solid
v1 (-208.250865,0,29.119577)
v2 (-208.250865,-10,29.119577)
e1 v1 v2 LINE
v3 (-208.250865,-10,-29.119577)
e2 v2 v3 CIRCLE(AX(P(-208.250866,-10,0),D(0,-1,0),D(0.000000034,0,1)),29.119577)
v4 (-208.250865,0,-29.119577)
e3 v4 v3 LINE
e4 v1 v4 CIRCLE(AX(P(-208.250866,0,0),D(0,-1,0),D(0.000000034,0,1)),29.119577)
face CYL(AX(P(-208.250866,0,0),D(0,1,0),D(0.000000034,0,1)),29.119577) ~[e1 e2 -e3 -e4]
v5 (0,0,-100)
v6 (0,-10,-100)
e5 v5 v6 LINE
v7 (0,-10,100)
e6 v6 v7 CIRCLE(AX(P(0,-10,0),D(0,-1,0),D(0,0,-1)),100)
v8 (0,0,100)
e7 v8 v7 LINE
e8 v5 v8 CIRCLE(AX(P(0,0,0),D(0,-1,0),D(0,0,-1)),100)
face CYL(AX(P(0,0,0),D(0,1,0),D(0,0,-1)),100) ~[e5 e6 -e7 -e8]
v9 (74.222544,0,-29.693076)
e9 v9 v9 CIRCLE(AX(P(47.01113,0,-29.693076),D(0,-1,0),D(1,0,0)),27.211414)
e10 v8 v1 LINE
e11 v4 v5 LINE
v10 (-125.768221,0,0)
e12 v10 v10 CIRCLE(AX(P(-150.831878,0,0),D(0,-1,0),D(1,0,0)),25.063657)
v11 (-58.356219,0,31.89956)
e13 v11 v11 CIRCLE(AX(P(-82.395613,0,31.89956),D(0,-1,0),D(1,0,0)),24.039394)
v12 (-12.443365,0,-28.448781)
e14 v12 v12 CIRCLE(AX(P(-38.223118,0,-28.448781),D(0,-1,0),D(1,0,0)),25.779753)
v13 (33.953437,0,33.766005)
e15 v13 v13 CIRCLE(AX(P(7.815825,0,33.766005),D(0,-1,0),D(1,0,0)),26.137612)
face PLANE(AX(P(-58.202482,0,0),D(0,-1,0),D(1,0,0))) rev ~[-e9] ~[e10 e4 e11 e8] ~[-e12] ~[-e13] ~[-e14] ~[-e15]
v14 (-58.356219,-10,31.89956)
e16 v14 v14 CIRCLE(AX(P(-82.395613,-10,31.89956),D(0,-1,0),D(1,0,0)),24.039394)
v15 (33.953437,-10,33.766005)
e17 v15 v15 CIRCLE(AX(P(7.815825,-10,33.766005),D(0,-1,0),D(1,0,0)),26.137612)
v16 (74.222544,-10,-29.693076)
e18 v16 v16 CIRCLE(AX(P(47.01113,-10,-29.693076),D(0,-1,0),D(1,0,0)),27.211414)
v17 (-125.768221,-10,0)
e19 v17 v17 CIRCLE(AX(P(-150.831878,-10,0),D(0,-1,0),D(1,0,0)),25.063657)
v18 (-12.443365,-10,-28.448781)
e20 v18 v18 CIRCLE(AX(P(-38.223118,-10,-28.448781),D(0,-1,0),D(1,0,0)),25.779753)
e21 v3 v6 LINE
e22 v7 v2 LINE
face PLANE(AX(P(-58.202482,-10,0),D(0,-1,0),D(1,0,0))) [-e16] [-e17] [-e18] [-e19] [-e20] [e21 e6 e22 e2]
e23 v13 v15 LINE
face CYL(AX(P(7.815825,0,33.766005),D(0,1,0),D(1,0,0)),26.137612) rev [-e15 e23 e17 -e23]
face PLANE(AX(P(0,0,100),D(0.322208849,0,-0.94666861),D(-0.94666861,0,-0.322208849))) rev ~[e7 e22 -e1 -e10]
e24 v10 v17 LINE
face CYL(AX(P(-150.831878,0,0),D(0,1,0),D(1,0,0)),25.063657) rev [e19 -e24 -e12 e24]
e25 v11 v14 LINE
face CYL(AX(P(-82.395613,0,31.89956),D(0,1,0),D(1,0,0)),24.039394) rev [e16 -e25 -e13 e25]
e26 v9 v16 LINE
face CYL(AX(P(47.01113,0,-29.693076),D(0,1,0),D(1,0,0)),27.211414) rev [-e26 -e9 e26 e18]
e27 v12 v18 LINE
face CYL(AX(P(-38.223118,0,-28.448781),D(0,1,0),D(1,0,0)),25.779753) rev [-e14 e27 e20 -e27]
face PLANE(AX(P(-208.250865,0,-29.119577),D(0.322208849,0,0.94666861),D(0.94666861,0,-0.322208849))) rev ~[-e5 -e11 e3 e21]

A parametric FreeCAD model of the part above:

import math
import FreeCAD as App
import Part
import Sketcher
Q = App.Units.Quantity

doc = App.newDocument("Part")
body = doc.addObject("PartDesign::Body", "Body")

# Sketch on XZ plane
sketch1 = body.newObject("Sketcher::SketchObject", "Sketch")
sketch1.AttachmentSupport = (doc.getObject("XZ_Plane"), [""])
sketch1.MapMode = "FlatFace"
sketch1.addGeometry([
    Part.LineSegment(App.Vector(-208, -29, 0), App.Vector(0, -100, 0)),  # 0
    Part.ArcOfCircle(Part.Circle(App.Vector(0, 0, 0), App.Vector(0, 0, 1), 100), math.radians(-90), math.radians(90)),  # 1
    Part.LineSegment(App.Vector(0, 100, 0), App.Vector(-208, 29, 0)),  # 2
    Part.ArcOfCircle(Part.Circle(App.Vector(-208, 0, 0), App.Vector(0, 0, 1), 29), math.radians(90), math.radians(270)),  # 3
    Part.Circle(App.Vector(-151, 0, 0), App.Vector(0, 0, 1), 25),  # 4
    Part.Circle(App.Vector(-38, -28, 0), App.Vector(0, 0, 1), 26),  # 5
    Part.Circle(App.Vector(47, -30, 0), App.Vector(0, 0, 1), 27),  # 6
    Part.Circle(App.Vector(-82, 32, 0), App.Vector(0, 0, 1), 24),  # 7
    Part.Circle(App.Vector(8, 34, 0), App.Vector(0, 0, 1), 26),  # 8
], False)
sketch1.addConstraint([
    Sketcher.Constraint("Coincident", 0, 2, 1, 1),
    Sketcher.Constraint("Coincident", 1, 2, 2, 1),
    Sketcher.Constraint("Coincident", 2, 2, 3, 1),
    Sketcher.Constraint("Coincident", 3, 2, 0, 1),
    Sketcher.Constraint("Coincident", 1, 3, -1, 1),
    Sketcher.Constraint("Symmetric", 2, 2, 3, 2, -1),
    Sketcher.Constraint("PointOnObject", 4, 3, -1),
    Sketcher.Constraint("PointOnObject", 0, 2, -2),
    Sketcher.Constraint("PointOnObject", 1, 2, -2),
    Sketcher.Constraint("Vertical", 3, 3, 2, 2),
    Sketcher.Constraint("Radius", 1, Q("100 mm")),
    Sketcher.Constraint("Diameter", 6, Q("54.422828 mm")),
    Sketcher.Constraint("Diameter", 7, Q("48.078788 mm")),
    Sketcher.Constraint("Diameter", 4, Q("50.127314 mm")),
    Sketcher.Constraint("Diameter", 5, Q("51.559506 mm")),
    Sketcher.Constraint("Diameter", 8, Q("52.275224 mm")),
    Sketcher.Constraint("Radius", 3, Q("29.119577 mm")),
    Sketcher.Constraint("DistanceY", 5, 3, -1, 1, Q("28.448781 mm")),
    Sketcher.Constraint("DistanceX", -1, 1, 6, 3, Q("47.01113 mm")),
    Sketcher.Constraint("DistanceY", -1, 1, 7, 3, Q("31.89956 mm")),
    Sketcher.Constraint("DistanceX", 3, 3, 4, 3, Q("57.418988 mm")),
    Sketcher.Constraint("DistanceX", 4, 3, 5, 3, Q("112.60876 mm")),
    Sketcher.Constraint("DistanceX", 5, 3, 6, 3, Q("85.234248 mm")),
    Sketcher.Constraint("DistanceY", 6, 3, 8, 3, Q("63.459081 mm")),
    Sketcher.Constraint("DistanceX", 7, 3, 8, 3, Q("90.211438 mm")),
    Sketcher.Constraint("DistanceY", 6, 3, -1, 1, Q("29.693076 mm")),
    Sketcher.Constraint("DistanceX", 7, 3, -1, 1, Q("82.395613 mm")),
])
pad1 = body.newObject("PartDesign::Pad", "Pad")
pad1.Profile = sketch1
pad1.Length = 10

doc.recompute()
